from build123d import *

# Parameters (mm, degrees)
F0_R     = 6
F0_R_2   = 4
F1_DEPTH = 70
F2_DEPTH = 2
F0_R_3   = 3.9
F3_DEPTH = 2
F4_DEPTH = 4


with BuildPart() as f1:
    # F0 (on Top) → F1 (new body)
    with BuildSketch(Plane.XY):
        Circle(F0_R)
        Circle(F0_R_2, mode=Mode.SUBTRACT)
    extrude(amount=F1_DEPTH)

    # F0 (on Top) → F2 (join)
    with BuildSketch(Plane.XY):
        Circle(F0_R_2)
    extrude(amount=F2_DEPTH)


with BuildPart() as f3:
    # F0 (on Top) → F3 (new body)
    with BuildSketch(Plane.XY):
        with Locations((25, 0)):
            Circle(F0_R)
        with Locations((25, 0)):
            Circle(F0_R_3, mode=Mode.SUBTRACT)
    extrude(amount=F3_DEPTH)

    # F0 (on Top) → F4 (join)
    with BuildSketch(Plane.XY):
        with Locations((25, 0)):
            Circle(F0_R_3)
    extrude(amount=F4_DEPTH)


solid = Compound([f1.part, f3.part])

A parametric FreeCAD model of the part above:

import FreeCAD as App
import Part
import Sketcher

V = App.Vector

doc = App.newDocument("Part")
body = doc.addObject("PartDesign::Body", "Body")

sketch1 = body.newObject("Sketcher::SketchObject", "Sketch")
sketch1.AttachmentSupport = (doc.getObject("XY_Plane"), [""])
sketch1.MapMode = "FlatFace"
sketch1.addGeometry(Part.Circle(V(0, 0, 0), V(0, 0, 1), 6), False)
sketch1.addGeometry(Part.Circle(V(0, 0, 0), V(0, 0, 1), 4), False)
sketch1.addConstraint(Sketcher.Constraint("Coincident", 0, 3, -1, 1))
sketch1.addConstraint(Sketcher.Constraint("Coincident", 1, 3, -1, 1))
sketch1.addConstraint(Sketcher.Constraint("Diameter", 0, 12.0))
sketch1.addConstraint(Sketcher.Constraint("Diameter", 1, 8.0))
pad1 = body.newObject("PartDesign::Pad", "Pad")
pad1.Profile = sketch1
pad1.Length = 70

sketch2 = body.newObject("Sketcher::SketchObject", "Sketch001")
sketch2.AttachmentSupport = (doc.getObject("XY_Plane"), [""])
sketch2.MapMode = "FlatFace"
sketch2.addGeometry(Part.Circle(V(0, 0, 0), V(0, 0, 1), 4), False)
sketch2.addConstraint(Sketcher.Constraint("Coincident", 0, 3, -1, 1))
sketch2.addConstraint(Sketcher.Constraint("Diameter", 0, 8.0))
pad2 = body.newObject("PartDesign::Pad", "Pad001")
pad2.Profile = sketch2
pad2.Length = 2
body2 = doc.addObject("PartDesign::Body", "Body001")

sketch3 = body2.newObject("Sketcher::SketchObject", "Sketch002")
sketch3.AttachmentSupport = (doc.getObject("XY_Plane001"), [""])
sketch3.MapMode = "FlatFace"
sketch3.addGeometry(Part.Circle(V(25, 0, 0), V(0, 0, 1), 6), False)
sketch3.addGeometry(Part.Circle(V(25, 0, 0), V(0, 0, 1), 3.9), False)
sketch3.addConstraint(Sketcher.Constraint("Coincident", 1, 3, 0, 3))
sketch3.addConstraint(Sketcher.Constraint("PointOnObject", 0, 3, -1))
sketch3.addConstraint(Sketcher.Constraint("Diameter", 0, 12.0))
sketch3.addConstraint(Sketcher.Constraint("Diameter", 1, 7.8))
sketch3.addConstraint(Sketcher.Constraint("DistanceX", -1, 1, 0, 3, 25.0))
pad3 = body2.newObject("PartDesign::Pad", "Pad002")
pad3.Profile = sketch3
pad3.Length = 2

sketch4 = body2.newObject("Sketcher::SketchObject", "Sketch003")
sketch4.AttachmentSupport = (doc.getObject("XY_Plane001"), [""])
sketch4.MapMode = "FlatFace"
sketch4.addGeometry(Part.Circle(V(25, 0, 0), V(0, 0, 1), 3.9), False)
sketch4.addConstraint(Sketcher.Constraint("PointOnObject", 0, 3, -1))
sketch4.addConstraint(Sketcher.Constraint("Diameter", 0, 7.8))
sketch4.addConstraint(Sketcher.Constraint("DistanceX", -1, 1, 0, 3, 25.0))
pad4 = body2.newObject("PartDesign::Pad", "Pad003")
pad4.Profile = sketch4
pad4.Length = 4

doc.recompute()
